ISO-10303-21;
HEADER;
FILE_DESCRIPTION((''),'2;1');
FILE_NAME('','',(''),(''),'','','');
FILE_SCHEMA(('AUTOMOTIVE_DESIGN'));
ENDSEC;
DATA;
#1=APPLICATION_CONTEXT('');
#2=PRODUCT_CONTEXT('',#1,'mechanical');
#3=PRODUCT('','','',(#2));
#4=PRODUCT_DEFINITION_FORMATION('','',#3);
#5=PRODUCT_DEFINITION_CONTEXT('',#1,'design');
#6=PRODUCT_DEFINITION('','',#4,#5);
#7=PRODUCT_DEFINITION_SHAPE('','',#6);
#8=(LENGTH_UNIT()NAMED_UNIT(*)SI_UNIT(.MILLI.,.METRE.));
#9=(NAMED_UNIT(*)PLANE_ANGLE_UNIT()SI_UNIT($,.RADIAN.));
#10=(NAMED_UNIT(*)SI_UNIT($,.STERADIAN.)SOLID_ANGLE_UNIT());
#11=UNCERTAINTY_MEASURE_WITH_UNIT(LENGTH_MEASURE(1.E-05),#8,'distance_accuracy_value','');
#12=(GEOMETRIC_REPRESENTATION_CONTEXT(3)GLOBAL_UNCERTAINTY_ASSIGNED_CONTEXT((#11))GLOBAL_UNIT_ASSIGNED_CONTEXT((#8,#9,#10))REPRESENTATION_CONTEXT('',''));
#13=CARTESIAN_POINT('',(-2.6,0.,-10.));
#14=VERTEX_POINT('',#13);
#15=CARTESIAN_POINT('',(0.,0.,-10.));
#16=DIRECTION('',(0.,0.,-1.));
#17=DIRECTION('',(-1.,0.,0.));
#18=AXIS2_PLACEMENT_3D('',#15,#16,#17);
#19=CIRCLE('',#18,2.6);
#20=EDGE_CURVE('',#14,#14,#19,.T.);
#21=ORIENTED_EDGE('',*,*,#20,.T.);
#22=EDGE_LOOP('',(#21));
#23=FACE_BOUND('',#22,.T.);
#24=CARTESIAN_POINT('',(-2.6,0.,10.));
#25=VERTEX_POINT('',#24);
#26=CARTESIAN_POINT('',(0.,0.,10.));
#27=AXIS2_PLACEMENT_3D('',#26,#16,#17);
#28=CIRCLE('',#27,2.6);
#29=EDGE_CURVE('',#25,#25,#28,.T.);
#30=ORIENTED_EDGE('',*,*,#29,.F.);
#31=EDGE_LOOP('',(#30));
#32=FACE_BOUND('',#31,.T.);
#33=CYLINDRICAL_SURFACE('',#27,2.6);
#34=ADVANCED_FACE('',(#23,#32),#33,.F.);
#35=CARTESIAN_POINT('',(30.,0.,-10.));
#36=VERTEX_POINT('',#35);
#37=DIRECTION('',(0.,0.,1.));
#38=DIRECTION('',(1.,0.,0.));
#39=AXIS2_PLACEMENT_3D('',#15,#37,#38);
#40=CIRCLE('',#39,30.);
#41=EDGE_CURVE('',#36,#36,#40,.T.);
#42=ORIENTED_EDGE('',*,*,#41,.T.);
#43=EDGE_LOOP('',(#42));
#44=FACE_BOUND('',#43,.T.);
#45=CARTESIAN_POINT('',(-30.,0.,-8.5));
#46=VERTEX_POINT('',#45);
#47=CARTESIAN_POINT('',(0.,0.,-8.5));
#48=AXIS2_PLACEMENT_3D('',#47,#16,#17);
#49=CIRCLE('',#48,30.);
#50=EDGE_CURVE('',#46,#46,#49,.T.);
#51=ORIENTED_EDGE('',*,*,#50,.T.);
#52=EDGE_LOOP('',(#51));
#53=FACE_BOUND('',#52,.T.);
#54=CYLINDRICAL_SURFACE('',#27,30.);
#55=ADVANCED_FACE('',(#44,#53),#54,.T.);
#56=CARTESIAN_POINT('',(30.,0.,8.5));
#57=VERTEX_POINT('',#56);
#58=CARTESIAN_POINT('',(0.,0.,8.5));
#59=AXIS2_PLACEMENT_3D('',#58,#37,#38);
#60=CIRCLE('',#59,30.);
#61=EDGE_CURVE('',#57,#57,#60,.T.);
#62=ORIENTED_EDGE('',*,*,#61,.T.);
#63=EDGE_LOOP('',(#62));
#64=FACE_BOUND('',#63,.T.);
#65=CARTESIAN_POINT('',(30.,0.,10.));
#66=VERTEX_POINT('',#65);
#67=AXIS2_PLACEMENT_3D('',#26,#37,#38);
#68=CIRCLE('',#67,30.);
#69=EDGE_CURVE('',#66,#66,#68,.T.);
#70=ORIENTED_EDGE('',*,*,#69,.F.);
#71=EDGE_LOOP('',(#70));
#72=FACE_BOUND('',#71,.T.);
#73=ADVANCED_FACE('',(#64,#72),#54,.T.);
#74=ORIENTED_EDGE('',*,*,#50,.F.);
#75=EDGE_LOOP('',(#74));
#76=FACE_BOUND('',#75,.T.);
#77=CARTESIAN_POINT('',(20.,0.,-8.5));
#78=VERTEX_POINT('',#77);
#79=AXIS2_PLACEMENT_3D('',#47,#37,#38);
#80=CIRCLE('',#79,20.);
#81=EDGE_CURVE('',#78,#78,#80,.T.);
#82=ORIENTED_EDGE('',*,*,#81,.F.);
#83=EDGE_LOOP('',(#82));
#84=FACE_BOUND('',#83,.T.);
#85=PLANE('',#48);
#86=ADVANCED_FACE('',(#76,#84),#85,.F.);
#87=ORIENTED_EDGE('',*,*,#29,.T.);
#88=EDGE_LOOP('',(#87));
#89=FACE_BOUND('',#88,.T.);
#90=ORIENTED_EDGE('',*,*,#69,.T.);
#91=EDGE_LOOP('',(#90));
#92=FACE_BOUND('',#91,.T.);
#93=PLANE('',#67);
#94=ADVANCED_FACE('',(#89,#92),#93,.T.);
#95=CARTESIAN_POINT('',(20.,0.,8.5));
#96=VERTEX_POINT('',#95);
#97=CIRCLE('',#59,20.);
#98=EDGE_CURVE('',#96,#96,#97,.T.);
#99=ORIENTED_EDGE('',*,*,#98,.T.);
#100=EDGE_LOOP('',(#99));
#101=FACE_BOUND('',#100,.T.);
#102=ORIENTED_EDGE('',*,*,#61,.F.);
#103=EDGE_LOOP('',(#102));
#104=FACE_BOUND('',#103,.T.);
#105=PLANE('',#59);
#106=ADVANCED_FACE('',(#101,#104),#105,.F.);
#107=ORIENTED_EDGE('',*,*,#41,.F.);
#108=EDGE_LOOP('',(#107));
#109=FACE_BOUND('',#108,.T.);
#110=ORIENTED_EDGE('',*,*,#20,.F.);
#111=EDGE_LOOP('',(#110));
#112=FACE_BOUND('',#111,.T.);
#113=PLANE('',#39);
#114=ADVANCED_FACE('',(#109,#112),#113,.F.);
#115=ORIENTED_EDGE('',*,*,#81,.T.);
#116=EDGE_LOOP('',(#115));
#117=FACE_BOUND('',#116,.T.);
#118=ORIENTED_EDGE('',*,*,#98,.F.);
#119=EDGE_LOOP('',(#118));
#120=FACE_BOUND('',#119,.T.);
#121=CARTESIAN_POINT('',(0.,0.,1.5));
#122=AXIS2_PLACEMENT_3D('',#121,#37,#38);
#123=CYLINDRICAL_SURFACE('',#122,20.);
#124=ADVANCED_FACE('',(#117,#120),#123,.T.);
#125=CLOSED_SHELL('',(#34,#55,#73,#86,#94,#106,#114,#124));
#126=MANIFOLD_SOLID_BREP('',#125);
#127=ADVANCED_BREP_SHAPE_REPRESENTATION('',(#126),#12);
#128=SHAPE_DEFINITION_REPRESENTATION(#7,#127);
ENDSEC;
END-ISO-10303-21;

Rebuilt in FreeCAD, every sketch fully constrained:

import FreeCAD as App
import Part
import Sketcher
from FreeCAD import Vector


def add_polygon(sketch, points):
    """Adds a closed chain of lines whose ends are joined by coincident constraints."""
    first, n = sketch.GeometryCount, len(points)
    for a, b in zip(points, points[1:] + points[:1]):
        sketch.addGeometry(Part.LineSegment(App.Vector(*a, 0), App.Vector(*b, 0)), False)
    for i in range(n):
        sketch.addConstraint(Sketcher.Constraint("Coincident", first + i, 2, first + (i + 1) % n, 1))

doc = App.newDocument("Part")
body = doc.addObject("PartDesign::Body", "Body")

sketch1 = body.newObject("Sketcher::SketchObject", "Sketch")
sketch1.AttachmentSupport = (doc.getObject("XY_Plane"), [""])
sketch1.MapMode = "FlatFace"
sketch1.addGeometry(Part.Circle(Vector(0, 0, 0), Vector(0, 0, 1), 30), False)
sketch1.addConstraint(Sketcher.Constraint("Coincident", 0, 3, -1, 1))
sketch1.addConstraint(Sketcher.Constraint("Diameter", 0, 60.0))
pad1 = body.newObject("PartDesign::Pad", "Pad")
pad1.Profile = sketch1
pad1.Length = 20
pad1.Midplane = True

sketch2 = body.newObject("Sketcher::SketchObject", "Sketch001")
sketch2.AttachmentSupport = (doc.getObject("XY_Plane"), [""])
sketch2.MapMode = "FlatFace"
sketch2.AttachmentOffset = App.Placement(Vector(0, 0, 5), App.Rotation())
add_polygon(sketch2, [(-40, 40), (-40, -40), (40, -40), (40, 40)])
sketch2.addGeometry(Part.Circle(Vector(0, 0, 0), Vector(0, 0, 1), 20), False)
sketch2.addConstraint(Sketcher.Constraint("Vertical", 0))
sketch2.addConstraint(Sketcher.Constraint("Horizontal", 1))
sketch2.addConstraint(Sketcher.Constraint("Vertical", 2))
sketch2.addConstraint(Sketcher.Constraint("Horizontal", 3))
sketch2.addConstraint(Sketcher.Constraint("Coincident", 4, 3, -1, 1))
sketch2.addConstraint(Sketcher.Constraint("Symmetric", 0, 2, 2, 2, -1, 1))
sketch2.addConstraint(Sketcher.Constraint("Equal", 3, 0))
sketch2.addConstraint(Sketcher.Constraint("Diameter", 4, 40.0))
sketch2.addConstraint(Sketcher.Constraint("DistanceX", 1, 1, 1, 2, 79.436))
pocket1 = body.newObject("PartDesign::Pocket", "Pocket")
pocket1.Profile = sketch2
pocket1.Length = 7
pocket1.Midplane = True
doc.recompute()

mirrored = body.newObject("PartDesign::Mirrored", "Mirrored")
mirrored.Originals = [pocket1]
mirrored.MirrorPlane = (doc.getObject("XY_Plane"), [""])
body.Tip = mirrored

sketch3 = body.newObject("Sketcher::SketchObject", "Sketch002")
sketch3.AttachmentSupport = (doc.getObject("XY_Plane"), [""])
sketch3.MapMode = "FlatFace"
sketch3.AttachmentOffset = App.Placement(Vector(0, 0, -10), App.Rotation())
sketch3.addGeometry(Part.Circle(Vector(0, 0, 0), Vector(0, 0, 1), 2.6), False)
sketch3.addConstraint(Sketcher.Constraint("Coincident", 0, 3, -1, 1))
sketch3.addConstraint(Sketcher.Constraint("Diameter", 0, 5.2))
pocket2 = body.newObject("PartDesign::Pocket", "Pocket001")
pocket2.Profile = sketch3
pocket2.Type = "ThroughAll"
pocket2.Midplane = True

sketch4 = body.newObject("Sketcher::SketchObject", "Sketch003")
sketch4.AttachmentSupport = (doc.getObject("XY_Plane"), [""])
sketch4.MapMode = "FlatFace"
sketch4.AttachmentOffset = App.Placement(Vector(0, 0, 1.5), App.Rotation())
sketch4.addGeometry(Part.Circle(Vector(0, 0, 0), Vector(0, 0, 1), 30), False)
sketch4.addGeometry(Part.Circle(Vector(0, 0, 0), Vector(0, 0, 1), 20), False)
sketch4.addConstraint(Sketcher.Constraint("Coincident", 0, 3, -1, 1))
sketch4.addConstraint(Sketcher.Constraint("Coincident", 1, 3, -1, 1))
sketch4.addConstraint(Sketcher.Constraint("Diameter", 0, 60.0))
sketch4.addConstraint(Sketcher.Constraint("Diameter", 1, 40.0))
pocket3 = body.newObject("PartDesign::Pocket", "Pocket002")
pocket3.Profile = sketch4
pocket3.Length = 3

doc.recompute()
